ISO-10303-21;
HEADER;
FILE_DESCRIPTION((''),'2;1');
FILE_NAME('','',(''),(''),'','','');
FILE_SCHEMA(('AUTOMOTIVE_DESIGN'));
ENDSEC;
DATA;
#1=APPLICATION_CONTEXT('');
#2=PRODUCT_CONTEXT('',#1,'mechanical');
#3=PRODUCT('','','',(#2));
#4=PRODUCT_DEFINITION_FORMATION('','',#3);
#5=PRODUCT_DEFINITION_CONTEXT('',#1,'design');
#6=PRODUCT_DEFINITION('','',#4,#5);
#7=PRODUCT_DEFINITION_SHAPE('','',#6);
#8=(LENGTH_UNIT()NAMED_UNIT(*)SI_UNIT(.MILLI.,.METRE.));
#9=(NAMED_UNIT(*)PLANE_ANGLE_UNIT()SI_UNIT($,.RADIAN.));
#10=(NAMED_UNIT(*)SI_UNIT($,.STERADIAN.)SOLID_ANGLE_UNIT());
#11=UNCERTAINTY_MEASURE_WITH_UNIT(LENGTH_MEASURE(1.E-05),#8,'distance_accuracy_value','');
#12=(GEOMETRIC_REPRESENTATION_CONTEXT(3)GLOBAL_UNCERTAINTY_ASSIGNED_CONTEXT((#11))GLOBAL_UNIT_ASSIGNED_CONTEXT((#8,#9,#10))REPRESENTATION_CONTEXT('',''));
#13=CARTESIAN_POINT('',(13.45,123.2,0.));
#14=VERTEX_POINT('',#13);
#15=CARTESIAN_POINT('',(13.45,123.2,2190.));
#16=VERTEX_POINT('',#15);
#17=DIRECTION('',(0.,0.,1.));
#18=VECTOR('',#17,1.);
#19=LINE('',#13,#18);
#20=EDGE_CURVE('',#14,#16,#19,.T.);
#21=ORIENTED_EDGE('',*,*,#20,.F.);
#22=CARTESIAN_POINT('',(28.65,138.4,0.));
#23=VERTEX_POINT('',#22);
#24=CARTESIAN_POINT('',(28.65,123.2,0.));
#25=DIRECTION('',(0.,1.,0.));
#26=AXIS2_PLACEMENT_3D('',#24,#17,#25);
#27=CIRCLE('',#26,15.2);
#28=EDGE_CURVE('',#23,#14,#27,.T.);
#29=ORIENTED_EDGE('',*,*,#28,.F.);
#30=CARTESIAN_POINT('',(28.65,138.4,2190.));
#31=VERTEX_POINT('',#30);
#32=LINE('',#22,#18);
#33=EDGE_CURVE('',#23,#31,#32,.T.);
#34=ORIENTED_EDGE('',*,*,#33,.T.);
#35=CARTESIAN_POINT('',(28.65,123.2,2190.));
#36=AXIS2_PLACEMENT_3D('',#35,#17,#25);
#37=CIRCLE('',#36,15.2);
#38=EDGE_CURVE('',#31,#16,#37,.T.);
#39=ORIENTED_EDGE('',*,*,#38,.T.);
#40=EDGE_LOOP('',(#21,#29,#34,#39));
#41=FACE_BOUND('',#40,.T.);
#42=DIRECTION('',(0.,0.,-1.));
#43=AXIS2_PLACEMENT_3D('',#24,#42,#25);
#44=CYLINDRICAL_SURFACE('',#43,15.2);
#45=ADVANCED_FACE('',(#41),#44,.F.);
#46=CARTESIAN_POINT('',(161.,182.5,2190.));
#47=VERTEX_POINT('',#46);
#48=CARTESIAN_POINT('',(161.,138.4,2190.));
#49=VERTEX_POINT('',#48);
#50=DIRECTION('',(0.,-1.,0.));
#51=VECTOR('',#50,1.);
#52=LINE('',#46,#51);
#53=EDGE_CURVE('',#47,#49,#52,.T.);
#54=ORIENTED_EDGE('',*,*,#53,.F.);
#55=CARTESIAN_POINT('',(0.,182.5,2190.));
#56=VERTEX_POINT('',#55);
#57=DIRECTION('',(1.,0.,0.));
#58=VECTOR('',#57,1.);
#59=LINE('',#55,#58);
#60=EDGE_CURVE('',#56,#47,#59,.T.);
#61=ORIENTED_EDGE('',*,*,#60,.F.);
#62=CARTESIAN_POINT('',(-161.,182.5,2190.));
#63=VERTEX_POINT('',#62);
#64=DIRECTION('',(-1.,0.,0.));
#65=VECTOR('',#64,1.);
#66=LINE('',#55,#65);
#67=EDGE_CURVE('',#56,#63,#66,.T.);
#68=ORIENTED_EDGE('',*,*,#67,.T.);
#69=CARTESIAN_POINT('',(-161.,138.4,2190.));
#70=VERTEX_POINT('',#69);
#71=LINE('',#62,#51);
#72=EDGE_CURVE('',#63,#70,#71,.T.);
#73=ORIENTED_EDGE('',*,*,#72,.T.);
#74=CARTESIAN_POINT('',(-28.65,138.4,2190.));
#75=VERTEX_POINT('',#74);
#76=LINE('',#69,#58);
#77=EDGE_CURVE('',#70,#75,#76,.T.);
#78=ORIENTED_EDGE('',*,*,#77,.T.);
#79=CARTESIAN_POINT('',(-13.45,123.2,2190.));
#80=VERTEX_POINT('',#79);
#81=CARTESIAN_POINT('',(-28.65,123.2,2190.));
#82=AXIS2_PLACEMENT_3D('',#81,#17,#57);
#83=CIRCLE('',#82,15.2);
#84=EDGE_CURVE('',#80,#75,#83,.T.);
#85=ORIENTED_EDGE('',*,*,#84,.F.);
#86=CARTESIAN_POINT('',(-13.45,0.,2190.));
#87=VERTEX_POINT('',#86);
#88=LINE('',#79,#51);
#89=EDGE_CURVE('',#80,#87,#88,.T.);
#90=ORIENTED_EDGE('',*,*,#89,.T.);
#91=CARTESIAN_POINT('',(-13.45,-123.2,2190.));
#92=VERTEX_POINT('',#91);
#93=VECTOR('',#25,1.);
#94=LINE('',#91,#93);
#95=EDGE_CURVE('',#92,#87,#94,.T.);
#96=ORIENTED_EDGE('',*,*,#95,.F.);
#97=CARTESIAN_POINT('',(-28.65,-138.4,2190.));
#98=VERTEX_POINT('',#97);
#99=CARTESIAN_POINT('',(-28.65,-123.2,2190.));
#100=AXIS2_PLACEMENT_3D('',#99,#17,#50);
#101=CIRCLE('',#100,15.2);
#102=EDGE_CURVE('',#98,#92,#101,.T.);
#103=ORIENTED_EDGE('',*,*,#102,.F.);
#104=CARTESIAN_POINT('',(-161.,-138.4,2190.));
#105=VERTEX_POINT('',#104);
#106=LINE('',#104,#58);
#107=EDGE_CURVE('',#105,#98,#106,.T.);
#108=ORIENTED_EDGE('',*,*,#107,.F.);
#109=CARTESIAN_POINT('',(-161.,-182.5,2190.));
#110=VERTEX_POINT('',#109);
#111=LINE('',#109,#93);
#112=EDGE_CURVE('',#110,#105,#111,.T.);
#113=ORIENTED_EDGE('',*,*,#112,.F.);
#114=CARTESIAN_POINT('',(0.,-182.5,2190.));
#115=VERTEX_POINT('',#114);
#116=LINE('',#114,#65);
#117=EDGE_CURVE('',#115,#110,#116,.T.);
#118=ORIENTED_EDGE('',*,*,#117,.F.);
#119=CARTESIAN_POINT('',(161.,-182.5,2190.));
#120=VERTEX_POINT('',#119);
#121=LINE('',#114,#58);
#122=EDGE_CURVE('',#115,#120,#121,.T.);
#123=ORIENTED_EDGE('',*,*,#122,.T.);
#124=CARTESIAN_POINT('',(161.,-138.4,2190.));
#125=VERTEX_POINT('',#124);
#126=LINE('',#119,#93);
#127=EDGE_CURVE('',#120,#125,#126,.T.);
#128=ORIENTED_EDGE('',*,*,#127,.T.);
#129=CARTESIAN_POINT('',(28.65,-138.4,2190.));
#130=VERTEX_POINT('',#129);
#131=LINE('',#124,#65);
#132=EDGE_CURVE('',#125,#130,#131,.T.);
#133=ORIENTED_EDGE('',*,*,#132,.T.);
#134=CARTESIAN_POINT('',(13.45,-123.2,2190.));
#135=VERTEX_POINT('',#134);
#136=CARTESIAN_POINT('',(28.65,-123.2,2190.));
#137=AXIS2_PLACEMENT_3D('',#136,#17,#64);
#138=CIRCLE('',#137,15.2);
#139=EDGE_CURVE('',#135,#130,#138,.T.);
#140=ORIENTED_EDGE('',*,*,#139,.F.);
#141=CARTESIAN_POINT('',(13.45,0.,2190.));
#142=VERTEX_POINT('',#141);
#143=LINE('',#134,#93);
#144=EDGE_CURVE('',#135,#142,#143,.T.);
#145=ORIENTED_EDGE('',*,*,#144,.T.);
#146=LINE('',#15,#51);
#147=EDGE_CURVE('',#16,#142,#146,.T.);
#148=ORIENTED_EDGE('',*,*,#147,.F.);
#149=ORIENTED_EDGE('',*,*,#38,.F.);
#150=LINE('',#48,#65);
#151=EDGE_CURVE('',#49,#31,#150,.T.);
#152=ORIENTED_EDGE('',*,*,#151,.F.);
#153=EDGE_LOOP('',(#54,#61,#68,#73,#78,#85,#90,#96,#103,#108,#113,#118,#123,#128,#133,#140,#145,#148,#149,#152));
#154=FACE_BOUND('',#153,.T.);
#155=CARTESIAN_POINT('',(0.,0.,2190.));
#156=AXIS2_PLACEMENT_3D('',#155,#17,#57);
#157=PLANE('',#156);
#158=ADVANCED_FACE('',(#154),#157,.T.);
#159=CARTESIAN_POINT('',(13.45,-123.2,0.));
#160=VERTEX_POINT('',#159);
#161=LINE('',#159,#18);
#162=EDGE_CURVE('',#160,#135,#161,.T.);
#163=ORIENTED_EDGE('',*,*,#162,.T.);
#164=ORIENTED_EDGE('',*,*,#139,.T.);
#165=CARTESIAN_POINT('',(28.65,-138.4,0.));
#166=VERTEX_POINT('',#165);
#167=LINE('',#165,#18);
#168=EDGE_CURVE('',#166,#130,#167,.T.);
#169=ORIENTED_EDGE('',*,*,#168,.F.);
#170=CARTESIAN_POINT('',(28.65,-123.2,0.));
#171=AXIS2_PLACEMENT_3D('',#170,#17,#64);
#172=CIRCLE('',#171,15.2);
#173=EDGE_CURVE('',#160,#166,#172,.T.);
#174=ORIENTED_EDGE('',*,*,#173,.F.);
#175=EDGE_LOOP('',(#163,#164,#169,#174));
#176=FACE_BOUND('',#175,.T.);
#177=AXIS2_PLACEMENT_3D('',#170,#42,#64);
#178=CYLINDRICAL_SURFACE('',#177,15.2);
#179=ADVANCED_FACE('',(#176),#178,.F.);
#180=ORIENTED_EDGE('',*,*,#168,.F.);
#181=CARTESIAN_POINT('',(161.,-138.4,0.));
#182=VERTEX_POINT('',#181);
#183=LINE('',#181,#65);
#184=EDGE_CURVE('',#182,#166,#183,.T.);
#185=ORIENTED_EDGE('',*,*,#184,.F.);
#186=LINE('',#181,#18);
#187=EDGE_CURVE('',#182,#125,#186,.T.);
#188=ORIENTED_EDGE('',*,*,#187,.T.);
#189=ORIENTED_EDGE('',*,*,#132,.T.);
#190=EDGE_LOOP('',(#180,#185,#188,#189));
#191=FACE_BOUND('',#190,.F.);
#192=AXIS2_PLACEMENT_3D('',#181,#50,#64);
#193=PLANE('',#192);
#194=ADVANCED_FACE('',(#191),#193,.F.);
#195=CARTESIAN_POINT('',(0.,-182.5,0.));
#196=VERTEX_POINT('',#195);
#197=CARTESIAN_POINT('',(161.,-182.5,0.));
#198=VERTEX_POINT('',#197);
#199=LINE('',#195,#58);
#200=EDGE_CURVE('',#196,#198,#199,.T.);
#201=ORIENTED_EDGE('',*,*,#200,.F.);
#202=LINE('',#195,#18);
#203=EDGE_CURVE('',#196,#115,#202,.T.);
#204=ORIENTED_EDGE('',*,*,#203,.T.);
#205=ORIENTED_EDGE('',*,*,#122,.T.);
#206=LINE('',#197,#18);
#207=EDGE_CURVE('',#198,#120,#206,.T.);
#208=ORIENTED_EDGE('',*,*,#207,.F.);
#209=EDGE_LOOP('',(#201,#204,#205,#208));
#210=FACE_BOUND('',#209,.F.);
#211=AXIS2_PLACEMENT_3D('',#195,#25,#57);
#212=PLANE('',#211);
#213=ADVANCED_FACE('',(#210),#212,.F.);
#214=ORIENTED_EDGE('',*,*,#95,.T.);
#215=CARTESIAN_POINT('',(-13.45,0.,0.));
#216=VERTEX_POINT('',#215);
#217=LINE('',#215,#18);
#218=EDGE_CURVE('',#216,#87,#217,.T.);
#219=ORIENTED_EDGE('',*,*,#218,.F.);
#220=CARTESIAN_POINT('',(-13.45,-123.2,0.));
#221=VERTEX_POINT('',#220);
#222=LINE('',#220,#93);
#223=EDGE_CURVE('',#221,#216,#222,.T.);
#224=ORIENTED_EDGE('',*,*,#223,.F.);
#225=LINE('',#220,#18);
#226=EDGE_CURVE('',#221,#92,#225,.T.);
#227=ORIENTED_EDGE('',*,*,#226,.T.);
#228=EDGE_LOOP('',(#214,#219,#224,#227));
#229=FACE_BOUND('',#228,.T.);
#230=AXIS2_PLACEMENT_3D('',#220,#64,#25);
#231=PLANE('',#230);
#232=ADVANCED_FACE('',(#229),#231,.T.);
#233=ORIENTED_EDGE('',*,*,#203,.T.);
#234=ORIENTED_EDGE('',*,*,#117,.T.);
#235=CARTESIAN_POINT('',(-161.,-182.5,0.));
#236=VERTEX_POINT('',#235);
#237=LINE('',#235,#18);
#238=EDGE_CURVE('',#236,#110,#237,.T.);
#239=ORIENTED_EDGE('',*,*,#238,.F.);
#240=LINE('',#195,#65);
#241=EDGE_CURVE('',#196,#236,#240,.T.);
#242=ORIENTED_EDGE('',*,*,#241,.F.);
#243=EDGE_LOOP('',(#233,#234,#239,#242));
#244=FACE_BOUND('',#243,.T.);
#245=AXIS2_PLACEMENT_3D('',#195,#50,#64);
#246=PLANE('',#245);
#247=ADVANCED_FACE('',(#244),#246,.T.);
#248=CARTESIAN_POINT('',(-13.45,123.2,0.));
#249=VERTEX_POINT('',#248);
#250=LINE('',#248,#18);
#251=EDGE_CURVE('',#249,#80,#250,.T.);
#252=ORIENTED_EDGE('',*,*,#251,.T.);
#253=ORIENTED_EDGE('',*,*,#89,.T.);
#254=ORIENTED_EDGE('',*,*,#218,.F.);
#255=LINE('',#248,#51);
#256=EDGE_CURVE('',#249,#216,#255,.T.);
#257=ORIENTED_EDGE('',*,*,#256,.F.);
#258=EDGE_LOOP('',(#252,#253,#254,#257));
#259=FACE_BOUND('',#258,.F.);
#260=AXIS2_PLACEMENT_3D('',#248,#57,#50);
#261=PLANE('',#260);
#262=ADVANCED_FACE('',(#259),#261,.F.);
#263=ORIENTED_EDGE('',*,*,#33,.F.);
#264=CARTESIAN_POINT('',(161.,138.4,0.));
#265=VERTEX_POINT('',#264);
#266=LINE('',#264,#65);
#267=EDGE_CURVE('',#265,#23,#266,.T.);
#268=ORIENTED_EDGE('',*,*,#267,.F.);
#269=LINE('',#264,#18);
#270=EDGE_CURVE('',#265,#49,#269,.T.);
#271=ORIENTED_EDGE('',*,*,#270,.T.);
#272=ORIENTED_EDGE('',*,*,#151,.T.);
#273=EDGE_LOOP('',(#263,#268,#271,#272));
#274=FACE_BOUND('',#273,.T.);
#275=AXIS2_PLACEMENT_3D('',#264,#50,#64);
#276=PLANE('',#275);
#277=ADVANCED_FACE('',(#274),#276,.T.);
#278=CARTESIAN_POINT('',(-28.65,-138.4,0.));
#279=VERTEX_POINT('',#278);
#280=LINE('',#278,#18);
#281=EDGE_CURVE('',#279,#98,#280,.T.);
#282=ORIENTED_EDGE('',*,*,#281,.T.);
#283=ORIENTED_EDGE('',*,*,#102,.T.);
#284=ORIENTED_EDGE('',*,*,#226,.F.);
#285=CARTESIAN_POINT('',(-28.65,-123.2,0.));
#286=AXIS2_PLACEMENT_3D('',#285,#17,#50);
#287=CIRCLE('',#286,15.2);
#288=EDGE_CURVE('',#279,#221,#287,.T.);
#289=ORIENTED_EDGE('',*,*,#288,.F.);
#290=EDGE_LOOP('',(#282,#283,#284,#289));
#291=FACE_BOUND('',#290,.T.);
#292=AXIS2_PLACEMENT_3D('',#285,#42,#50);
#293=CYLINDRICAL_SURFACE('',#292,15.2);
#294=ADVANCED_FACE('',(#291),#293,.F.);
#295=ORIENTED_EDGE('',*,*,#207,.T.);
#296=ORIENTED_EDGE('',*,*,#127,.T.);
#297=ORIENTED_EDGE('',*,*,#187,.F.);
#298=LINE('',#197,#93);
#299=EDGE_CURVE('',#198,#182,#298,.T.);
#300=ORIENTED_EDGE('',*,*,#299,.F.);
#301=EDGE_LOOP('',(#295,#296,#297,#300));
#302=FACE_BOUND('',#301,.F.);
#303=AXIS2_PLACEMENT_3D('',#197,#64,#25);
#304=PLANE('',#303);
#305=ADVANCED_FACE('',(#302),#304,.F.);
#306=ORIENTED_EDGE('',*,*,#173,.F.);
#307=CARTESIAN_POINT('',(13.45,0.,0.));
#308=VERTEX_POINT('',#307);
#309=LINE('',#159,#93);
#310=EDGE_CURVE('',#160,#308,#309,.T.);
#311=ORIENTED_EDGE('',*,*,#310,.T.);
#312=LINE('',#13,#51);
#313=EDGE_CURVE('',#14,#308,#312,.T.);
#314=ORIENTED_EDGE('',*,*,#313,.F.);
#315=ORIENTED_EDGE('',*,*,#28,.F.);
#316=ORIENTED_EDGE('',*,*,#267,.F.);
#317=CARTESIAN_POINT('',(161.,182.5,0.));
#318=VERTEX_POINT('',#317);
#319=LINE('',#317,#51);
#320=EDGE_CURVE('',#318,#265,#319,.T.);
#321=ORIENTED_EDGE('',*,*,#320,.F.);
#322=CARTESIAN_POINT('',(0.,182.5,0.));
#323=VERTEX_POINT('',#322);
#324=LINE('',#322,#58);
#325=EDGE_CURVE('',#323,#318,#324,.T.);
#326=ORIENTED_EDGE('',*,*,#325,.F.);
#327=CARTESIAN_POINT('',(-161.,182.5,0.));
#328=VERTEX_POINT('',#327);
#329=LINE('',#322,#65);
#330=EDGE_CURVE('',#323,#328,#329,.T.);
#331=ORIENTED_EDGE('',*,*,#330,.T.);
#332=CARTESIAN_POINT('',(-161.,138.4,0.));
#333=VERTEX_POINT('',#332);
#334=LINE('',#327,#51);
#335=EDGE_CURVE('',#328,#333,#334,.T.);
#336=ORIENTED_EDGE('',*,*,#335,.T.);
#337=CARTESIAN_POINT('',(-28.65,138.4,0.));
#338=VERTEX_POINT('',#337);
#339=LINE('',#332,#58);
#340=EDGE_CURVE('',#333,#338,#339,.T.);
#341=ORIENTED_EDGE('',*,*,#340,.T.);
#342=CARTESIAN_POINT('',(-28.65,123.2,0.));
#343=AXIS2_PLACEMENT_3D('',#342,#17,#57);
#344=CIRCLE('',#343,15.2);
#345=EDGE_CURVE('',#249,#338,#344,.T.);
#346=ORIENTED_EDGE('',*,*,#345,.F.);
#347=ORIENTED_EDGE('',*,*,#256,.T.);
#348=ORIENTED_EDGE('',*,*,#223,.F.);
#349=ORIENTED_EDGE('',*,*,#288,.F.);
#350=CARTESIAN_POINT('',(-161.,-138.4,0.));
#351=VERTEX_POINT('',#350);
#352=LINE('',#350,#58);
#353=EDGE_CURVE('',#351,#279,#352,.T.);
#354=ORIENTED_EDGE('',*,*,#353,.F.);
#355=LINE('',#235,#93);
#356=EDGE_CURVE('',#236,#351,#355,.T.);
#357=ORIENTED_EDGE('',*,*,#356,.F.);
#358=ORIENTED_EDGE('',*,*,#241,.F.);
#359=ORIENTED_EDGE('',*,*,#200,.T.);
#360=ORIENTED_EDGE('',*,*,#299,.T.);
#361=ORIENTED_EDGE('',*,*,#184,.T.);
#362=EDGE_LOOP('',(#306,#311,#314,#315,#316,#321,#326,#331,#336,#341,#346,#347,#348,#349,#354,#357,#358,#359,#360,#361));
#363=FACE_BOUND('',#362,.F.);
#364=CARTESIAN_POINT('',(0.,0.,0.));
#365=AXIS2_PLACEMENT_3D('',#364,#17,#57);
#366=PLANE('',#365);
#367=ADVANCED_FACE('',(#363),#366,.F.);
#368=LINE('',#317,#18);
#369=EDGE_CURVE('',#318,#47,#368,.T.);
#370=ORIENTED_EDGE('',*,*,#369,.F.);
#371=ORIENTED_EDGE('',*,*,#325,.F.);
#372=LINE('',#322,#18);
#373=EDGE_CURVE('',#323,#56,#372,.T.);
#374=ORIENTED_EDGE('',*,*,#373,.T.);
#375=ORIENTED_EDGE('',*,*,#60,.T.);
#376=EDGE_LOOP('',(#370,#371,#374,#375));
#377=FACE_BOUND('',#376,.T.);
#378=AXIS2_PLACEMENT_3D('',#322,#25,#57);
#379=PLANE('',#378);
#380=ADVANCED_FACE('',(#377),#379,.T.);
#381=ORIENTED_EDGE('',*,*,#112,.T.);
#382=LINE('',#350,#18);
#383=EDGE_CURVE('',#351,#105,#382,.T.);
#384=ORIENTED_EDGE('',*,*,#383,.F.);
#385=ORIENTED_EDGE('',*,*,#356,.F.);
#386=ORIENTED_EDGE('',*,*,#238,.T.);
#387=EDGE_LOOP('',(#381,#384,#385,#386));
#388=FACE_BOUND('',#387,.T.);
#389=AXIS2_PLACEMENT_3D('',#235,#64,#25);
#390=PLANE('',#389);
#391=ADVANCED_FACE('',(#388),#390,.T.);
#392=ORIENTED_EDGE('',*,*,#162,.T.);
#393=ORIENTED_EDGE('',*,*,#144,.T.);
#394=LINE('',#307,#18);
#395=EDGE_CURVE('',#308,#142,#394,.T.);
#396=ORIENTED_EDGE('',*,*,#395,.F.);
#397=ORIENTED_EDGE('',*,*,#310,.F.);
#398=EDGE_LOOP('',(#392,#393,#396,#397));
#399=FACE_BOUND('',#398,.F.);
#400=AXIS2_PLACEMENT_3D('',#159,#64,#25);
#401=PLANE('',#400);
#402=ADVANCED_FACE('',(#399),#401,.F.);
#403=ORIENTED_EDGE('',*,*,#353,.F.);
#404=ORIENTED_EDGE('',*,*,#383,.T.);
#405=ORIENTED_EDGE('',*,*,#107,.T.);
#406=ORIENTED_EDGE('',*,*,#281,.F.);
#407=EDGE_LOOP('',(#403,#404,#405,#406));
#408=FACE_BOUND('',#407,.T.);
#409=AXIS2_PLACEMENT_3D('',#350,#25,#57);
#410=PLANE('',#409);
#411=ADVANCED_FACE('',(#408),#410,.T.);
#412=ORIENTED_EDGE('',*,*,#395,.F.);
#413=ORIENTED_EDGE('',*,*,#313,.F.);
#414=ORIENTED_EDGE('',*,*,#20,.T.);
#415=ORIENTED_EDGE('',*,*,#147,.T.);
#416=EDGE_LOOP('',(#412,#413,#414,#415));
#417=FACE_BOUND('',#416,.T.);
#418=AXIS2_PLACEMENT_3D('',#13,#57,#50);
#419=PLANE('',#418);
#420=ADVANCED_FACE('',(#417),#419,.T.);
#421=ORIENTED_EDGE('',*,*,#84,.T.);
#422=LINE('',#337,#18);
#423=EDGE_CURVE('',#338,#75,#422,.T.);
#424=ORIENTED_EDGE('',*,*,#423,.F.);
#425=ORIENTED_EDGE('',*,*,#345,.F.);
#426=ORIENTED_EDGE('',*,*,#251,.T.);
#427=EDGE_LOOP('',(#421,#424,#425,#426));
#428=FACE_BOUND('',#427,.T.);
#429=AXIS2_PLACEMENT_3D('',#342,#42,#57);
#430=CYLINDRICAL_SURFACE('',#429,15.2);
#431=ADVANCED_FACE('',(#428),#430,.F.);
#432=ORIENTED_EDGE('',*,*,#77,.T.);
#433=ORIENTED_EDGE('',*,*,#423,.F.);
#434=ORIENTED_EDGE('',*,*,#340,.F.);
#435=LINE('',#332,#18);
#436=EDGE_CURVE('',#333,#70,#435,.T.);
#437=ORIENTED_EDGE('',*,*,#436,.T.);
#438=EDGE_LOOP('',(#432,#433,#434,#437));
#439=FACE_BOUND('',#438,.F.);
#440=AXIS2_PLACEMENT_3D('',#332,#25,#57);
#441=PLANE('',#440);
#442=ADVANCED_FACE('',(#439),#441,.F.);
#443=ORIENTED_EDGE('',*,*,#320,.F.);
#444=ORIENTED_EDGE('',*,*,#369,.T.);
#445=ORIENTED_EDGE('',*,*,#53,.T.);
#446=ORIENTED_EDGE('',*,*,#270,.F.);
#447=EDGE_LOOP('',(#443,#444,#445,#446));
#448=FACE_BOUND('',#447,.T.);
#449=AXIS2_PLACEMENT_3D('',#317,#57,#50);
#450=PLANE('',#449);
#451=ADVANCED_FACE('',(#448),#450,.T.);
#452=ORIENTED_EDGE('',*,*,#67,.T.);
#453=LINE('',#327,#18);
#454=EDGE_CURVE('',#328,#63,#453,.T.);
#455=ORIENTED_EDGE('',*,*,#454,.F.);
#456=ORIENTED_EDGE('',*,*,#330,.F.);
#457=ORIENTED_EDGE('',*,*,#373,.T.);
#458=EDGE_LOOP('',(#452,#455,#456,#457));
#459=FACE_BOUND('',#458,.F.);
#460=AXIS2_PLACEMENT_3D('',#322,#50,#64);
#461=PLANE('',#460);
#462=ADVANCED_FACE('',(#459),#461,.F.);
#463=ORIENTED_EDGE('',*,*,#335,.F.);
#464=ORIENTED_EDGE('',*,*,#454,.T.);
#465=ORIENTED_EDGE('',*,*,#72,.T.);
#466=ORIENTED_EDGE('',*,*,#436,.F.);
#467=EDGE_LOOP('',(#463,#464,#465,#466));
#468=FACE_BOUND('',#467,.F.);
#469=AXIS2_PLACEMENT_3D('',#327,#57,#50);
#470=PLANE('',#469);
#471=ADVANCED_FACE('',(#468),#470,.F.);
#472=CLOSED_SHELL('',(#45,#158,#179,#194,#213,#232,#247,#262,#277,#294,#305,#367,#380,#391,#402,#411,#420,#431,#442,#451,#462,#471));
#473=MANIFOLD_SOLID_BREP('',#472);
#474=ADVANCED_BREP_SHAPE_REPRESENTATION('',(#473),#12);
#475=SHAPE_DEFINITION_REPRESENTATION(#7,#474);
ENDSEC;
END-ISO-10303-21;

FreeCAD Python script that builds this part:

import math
import FreeCAD as App
import Part
import Sketcher

V = App.Vector

doc = App.newDocument("Part")
body = doc.addObject("PartDesign::Body", "Body")

sketch1 = body.newObject("Sketcher::SketchObject", "Sketch")
sketch1.AttachmentSupport = (doc.getObject("XY_Plane"), [""])
sketch1.MapMode = "FlatFace"
sketch1.addGeometry([
    Part.LineSegment(V(-161, -138, 0), V(-161, -182, 0)),
    Part.LineSegment(V(-161, -182, 0), V(161, -182, 0)),
    Part.LineSegment(V(161, -182, 0), V(161, -138, 0)),
    Part.LineSegment(V(161, -138, 0), V(29, -138, 0)),
    Part.ArcOfCircle(Part.Circle(V(29, -123, 0), V(0, 0, 1), 15), math.radians(180), math.radians(270)),
    Part.LineSegment(V(13, -123, 0), V(13, 123, 0)),
    Part.ArcOfCircle(Part.Circle(V(29, 123, 0), V(0, 0, 1), 15), math.radians(90), math.radians(180)),
    Part.LineSegment(V(29, 138, 0), V(161, 138, 0)),
    Part.LineSegment(V(161, 138, 0), V(161, 182, 0)),
    Part.LineSegment(V(161, 182, 0), V(-161, 182, 0)),
    Part.LineSegment(V(-161, 182, 0), V(-161, 138, 0)),
    Part.LineSegment(V(-161, 138, 0), V(-29, 138, 0)),
    Part.ArcOfCircle(Part.Circle(V(-29, 123, 0), V(0, 0, 1), 15), math.radians(0), math.radians(90)),
    Part.LineSegment(V(-13, 123, 0), V(-13, -123, 0)),
    Part.ArcOfCircle(Part.Circle(V(-29, -123, 0), V(0, 0, 1), 15), math.radians(-90), math.radians(0)),
    Part.LineSegment(V(-29, -138, 0), V(-161, -138, 0)),
], False)
sketch1.addConstraint([
    Sketcher.Constraint("Coincident", 0, 2, 1, 1),
    Sketcher.Constraint("Coincident", 1, 2, 2, 1),
    Sketcher.Constraint("Coincident", 2, 2, 3, 1),
    Sketcher.Constraint("Tangent", 3, 2, 4, 2),
    Sketcher.Constraint("Tangent", 4, 1, 5, 1),
    Sketcher.Constraint("Tangent", 5, 2, 6, 2),
    Sketcher.Constraint("Tangent", 6, 1, 7, 1),
    Sketcher.Constraint("Coincident", 7, 2, 8, 1),
    Sketcher.Constraint("Coincident", 8, 2, 9, 1),
    Sketcher.Constraint("Coincident", 9, 2, 10, 1),
    Sketcher.Constraint("Coincident", 10, 2, 11, 1),
    Sketcher.Constraint("Tangent", 11, 2, 12, 2),
    Sketcher.Constraint("Tangent", 12, 1, 13, 1),
    Sketcher.Constraint("Tangent", 13, 2, 14, 2),
    Sketcher.Constraint("Tangent", 14, 1, 15, 1),
    Sketcher.Constraint("Coincident", 15, 2, 0, 1),
    Sketcher.Constraint("Vertical", 0),
    Sketcher.Constraint("Horizontal", 1),
    Sketcher.Constraint("Vertical", 2),
    Sketcher.Constraint("Horizontal", 3),
    Sketcher.Constraint("Vertical", 5),
    Sketcher.Constraint("Horizontal", 7),
    Sketcher.Constraint("Vertical", 8),
    Sketcher.Constraint("Horizontal", 9),
    Sketcher.Constraint("Vertical", 10),
    Sketcher.Constraint("Horizontal", 11),
    Sketcher.Constraint("Vertical", 13),
    Sketcher.Constraint("Horizontal", 15),
    Sketcher.Constraint("Equal", 4, 6),
    Sketcher.Constraint("Equal", 6, 12),
    Sketcher.Constraint("Equal", 12, 14),
    Sketcher.Constraint("Symmetric", 4, 3, 12, 3, -1, 1),
    Sketcher.Constraint("Symmetric", 0, 2, 8, 2, -1, 1),
    Sketcher.Constraint("Symmetric", 7, 2, 10, 2, -2),
    Sketcher.Constraint("Symmetric", 2, 2, 15, 2, -2),
    Sketcher.Constraint("Radius", 4, 15.2),
    Sketcher.Constraint("DistanceY", 0, 2, 0, 1, 44.1),
    Sketcher.Constraint("DistanceX", 0, 2, -1, 1, 161.0),
    Sketcher.Constraint("DistanceY", 0, 2, -1, 1, 182.5),
    Sketcher.Constraint("DistanceX", -1, 1, 4, 1, 13.45),
])
pad1 = body.newObject("PartDesign::Pad", "Pad")
pad1.Profile = sketch1
pad1.Length = 2190

doc.recompute()
